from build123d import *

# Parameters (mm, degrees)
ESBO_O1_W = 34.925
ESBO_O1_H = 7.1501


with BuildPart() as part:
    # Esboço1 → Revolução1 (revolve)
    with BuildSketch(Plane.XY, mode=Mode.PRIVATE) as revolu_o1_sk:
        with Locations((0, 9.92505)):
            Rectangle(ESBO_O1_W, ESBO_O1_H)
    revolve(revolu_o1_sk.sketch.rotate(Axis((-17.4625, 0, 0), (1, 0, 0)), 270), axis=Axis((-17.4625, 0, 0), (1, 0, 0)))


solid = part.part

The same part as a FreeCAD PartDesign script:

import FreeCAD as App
import Part
import Sketcher
Q = App.Units.Quantity

doc = App.newDocument("Part")
body = doc.addObject("PartDesign::Body", "Body")

sketch1 = body.newObject("Sketcher::SketchObject", "Sketch")
sketch1.AttachmentSupport = (doc.getObject("XY_Plane"), [""])
sketch1.MapMode = "FlatFace"
sketch1.addGeometry(Part.LineSegment(App.Vector(-17, 14, 0), App.Vector(-17, 6, 0)), False)
sketch1.addGeometry(Part.LineSegment(App.Vector(-17, 6, 0), App.Vector(17, 6, 0)), False)
sketch1.addGeometry(Part.LineSegment(App.Vector(17, 6, 0), App.Vector(17, 14, 0)), False)
sketch1.addGeometry(Part.LineSegment(App.Vector(17, 14, 0), App.Vector(-17, 14, 0)), False)
sketch1.addConstraint(Sketcher.Constraint("Coincident", 0, 2, 1, 1))
sketch1.addConstraint(Sketcher.Constraint("Coincident", 1, 2, 2, 1))
sketch1.addConstraint(Sketcher.Constraint("Coincident", 2, 2, 3, 1))
sketch1.addConstraint(Sketcher.Constraint("Coincident", 3, 2, 0, 1))
sketch1.addConstraint(Sketcher.Constraint("Vertical", 0))
sketch1.addConstraint(Sketcher.Constraint("Horizontal", 1))
sketch1.addConstraint(Sketcher.Constraint("Vertical", 2))
sketch1.addConstraint(Sketcher.Constraint("Horizontal", 3))
sketch1.addConstraint(Sketcher.Constraint("DistanceX", 1, 1, 1, 2, Q("1.375 in")))
sketch1.addConstraint(Sketcher.Constraint("DistanceY", -1, 1, 0, 2, Q("0.25 in")))
sketch1.addConstraint(Sketcher.Constraint("DistanceY", 0, 2, 0, 1, Q("0.2815 in")))
sketch1.addConstraint(Sketcher.Constraint("DistanceX", 0, 2, -1, 1, Q("0.6875 in")))
revolution = body.newObject("PartDesign::Revolution", "Revolution")
revolution.Profile = sketch1
revolution.ReferenceAxis = (sketch1, ["H_Axis"])
revolution.Angle = 360

doc.recompute()
